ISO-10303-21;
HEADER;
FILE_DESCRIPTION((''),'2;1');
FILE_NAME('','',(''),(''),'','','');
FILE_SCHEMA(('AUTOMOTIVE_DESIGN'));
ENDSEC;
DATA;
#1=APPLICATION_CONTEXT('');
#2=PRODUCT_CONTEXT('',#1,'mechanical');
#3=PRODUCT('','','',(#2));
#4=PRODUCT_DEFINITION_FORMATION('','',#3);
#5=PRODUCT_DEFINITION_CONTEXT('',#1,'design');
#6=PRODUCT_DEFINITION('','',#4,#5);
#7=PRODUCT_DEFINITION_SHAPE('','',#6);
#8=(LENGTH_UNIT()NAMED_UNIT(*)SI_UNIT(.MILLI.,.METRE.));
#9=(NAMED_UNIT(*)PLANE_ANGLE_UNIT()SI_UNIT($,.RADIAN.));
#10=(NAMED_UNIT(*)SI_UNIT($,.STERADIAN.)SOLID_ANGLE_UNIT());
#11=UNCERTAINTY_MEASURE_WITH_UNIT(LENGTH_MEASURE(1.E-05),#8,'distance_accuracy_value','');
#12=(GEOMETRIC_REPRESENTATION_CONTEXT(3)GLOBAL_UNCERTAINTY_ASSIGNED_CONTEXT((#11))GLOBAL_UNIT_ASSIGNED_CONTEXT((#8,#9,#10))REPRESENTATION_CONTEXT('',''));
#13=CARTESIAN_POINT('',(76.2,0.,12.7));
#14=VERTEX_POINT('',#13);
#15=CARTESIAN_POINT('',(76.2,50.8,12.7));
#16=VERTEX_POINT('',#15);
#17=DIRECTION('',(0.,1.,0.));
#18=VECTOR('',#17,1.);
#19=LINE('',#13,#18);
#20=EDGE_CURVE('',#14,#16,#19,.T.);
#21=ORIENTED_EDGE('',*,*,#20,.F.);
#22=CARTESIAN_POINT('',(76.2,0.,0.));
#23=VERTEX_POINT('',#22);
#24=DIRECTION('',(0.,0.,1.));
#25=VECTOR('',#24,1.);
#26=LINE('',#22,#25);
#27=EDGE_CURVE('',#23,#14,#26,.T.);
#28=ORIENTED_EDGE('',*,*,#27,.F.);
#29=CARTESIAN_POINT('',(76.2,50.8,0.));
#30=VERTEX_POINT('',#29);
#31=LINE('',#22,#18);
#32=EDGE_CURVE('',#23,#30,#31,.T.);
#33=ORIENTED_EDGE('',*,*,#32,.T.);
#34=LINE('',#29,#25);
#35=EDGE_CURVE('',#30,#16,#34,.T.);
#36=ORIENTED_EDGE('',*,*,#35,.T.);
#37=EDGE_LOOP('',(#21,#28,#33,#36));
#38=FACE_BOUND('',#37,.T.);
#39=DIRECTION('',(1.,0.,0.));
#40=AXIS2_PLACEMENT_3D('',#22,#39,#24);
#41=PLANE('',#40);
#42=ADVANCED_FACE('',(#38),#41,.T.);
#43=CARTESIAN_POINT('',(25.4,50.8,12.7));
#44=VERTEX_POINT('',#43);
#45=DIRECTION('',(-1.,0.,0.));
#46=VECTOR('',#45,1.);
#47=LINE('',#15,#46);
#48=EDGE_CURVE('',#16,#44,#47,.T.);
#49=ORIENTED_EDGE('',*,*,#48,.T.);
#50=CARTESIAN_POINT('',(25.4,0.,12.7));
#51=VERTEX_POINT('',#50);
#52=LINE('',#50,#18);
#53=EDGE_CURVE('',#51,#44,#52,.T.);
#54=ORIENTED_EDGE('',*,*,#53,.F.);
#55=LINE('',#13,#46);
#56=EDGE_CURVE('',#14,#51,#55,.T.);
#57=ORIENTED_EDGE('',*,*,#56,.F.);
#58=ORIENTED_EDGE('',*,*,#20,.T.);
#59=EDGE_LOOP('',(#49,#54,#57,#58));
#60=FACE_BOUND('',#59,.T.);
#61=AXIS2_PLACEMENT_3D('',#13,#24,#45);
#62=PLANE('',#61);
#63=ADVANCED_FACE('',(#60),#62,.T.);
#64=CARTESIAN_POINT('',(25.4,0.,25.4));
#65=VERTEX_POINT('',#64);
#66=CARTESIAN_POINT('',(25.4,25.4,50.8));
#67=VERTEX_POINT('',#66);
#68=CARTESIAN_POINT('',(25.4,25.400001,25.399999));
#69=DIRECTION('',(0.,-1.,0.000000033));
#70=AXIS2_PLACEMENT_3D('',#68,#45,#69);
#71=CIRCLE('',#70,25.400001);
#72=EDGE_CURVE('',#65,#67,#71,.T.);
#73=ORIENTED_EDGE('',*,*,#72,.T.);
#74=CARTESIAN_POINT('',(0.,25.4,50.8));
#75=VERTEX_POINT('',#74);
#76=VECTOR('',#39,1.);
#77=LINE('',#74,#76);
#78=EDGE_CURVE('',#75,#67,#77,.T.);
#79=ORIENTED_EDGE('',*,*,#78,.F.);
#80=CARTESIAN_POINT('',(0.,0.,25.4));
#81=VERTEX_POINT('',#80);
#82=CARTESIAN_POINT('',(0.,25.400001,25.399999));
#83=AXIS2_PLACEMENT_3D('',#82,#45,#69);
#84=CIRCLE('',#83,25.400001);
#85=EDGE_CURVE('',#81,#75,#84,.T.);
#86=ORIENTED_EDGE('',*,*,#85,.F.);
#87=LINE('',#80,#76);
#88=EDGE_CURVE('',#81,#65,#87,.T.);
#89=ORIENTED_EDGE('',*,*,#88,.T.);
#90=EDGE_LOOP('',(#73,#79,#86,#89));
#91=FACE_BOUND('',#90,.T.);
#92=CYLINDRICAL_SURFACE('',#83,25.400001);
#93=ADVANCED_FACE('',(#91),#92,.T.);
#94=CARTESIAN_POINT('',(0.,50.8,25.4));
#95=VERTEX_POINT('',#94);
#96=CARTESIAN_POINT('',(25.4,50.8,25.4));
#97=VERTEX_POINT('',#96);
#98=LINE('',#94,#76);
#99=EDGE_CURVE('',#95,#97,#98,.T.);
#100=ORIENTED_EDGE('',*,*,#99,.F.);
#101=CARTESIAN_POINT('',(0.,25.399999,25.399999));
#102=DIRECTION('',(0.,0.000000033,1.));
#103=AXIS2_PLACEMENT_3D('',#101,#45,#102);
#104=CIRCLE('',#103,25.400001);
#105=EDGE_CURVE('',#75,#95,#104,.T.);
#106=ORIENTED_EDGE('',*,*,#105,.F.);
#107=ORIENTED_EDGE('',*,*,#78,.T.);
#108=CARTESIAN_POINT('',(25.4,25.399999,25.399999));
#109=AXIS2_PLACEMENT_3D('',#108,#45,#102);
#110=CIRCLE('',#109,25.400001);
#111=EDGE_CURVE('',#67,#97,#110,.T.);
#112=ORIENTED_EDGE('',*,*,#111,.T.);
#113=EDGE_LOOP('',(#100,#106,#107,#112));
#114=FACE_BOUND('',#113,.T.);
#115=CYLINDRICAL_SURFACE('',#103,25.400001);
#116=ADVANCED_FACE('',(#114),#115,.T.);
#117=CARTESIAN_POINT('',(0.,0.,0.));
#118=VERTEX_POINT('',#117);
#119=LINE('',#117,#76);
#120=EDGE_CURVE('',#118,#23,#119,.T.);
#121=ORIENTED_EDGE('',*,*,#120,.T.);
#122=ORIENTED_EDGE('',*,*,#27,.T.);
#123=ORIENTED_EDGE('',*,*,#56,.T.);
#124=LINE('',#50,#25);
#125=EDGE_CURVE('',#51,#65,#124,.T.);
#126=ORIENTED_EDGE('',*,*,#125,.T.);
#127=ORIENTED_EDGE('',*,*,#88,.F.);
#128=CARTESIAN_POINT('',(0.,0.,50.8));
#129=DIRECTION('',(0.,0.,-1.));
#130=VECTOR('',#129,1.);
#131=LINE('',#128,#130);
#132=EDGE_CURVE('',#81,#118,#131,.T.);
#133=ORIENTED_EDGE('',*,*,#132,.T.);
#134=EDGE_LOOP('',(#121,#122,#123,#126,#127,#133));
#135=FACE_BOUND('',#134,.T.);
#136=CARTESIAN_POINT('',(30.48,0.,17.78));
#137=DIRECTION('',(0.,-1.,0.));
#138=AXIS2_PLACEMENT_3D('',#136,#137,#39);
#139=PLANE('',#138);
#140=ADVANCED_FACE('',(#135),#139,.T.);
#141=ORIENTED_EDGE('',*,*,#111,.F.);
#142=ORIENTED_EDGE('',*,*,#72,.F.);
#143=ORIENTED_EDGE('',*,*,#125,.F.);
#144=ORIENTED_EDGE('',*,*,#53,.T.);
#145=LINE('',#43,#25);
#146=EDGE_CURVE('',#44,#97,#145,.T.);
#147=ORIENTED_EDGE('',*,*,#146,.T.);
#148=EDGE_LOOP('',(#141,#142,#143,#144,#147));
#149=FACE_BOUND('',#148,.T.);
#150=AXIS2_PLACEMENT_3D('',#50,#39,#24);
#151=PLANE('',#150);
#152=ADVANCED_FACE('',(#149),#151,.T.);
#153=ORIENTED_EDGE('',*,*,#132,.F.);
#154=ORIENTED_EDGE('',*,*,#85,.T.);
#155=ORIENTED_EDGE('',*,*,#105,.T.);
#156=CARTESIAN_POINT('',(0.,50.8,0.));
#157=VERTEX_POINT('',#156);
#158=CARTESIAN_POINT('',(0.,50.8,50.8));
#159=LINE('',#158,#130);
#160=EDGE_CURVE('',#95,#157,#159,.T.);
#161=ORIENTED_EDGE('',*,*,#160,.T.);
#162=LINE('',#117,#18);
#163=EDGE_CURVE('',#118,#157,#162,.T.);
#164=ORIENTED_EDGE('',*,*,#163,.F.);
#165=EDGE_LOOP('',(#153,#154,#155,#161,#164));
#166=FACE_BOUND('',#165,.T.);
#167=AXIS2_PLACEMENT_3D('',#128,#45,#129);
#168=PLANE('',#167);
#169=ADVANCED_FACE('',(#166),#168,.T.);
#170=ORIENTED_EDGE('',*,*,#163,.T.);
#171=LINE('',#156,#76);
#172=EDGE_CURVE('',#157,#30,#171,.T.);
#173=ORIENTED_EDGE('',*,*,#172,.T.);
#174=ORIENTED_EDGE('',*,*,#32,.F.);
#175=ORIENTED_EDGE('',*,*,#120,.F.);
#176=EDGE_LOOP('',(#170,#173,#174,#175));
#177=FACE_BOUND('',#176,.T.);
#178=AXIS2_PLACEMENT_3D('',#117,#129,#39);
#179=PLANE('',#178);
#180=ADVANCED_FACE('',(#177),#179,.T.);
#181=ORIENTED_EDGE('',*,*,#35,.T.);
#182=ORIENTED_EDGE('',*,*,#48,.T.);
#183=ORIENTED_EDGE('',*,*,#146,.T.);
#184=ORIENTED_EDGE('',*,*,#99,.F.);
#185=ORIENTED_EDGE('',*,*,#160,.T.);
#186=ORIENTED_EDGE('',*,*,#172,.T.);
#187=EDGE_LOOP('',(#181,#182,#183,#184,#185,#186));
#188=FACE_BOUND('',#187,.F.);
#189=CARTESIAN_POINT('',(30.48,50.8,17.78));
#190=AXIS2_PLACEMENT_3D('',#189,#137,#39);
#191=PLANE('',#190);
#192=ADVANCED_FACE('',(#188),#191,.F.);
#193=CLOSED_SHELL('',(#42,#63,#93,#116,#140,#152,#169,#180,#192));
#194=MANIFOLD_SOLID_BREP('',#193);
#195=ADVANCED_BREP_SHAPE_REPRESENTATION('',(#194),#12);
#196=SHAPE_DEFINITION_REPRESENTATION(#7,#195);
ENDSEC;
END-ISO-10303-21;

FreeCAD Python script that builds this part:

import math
import FreeCAD as App
import Part
import Sketcher

V = App.Vector
Q = App.Units.Quantity

doc = App.newDocument("Part")
body = doc.addObject("PartDesign::Body", "Body")

# Sketch on XZ plane
sketch1 = body.newObject("Sketcher::SketchObject", "Sketch")
sketch1.AttachmentSupport = (doc.getObject("XZ_Plane"), [""])
sketch1.MapMode = "FlatFace"
sketch1.addGeometry([
    Part.LineSegment(V(0, 51, 0), V(0, 0, 0)),  # 0
    Part.LineSegment(V(0, 0, 0), V(76, 0, 0)),  # 1
    Part.LineSegment(V(76, 0, 0), V(76, 13, 0)),  # 2
    Part.LineSegment(V(76, 13, 0), V(25, 13, 0)),  # 3
    Part.LineSegment(V(25, 13, 0), V(25, 51, 0)),  # 4
    Part.LineSegment(V(25, 51, 0), V(0, 51, 0)),  # 5
], False)
sketch1.addConstraint([
    Sketcher.Constraint("Coincident", 0, 2, 1, 1),
    Sketcher.Constraint("Coincident", 1, 2, 2, 1),
    Sketcher.Constraint("Coincident", 2, 2, 3, 1),
    Sketcher.Constraint("Coincident", 3, 2, 4, 1),
    Sketcher.Constraint("Coincident", 4, 2, 5, 1),
    Sketcher.Constraint("Coincident", 5, 2, 0, 1),
    Sketcher.Constraint("Vertical", 0),
    Sketcher.Constraint("Horizontal", 1),
    Sketcher.Constraint("Vertical", 2),
    Sketcher.Constraint("Horizontal", 3),
    Sketcher.Constraint("Vertical", 4),
    Sketcher.Constraint("Horizontal", 5),
    Sketcher.Constraint("Coincident", 0, 2, -1, 1),
    Sketcher.Constraint("Equal", 3, 0),
    Sketcher.Constraint("DistanceX", 1, 1, 1, 2, Q("3 in")),
    Sketcher.Constraint("DistanceX", 3, 2, 3, 1, Q("2 in")),
    Sketcher.Constraint("DistanceY", 2, 1, 2, 2, Q("0.5 in")),
])
pad1 = body.newObject("PartDesign::Pad", "Pad")
pad1.Profile = sketch1
pad1.Length = Q("2 in")
pad1.Reversed = True

# Sketch on YZ plane
sketch2 = body.newObject("Sketcher::SketchObject", "Sketch001")
sketch2.AttachmentSupport = (doc.getObject("YZ_Plane"), [""])
sketch2.MapMode = "FlatFace"
sketch2.addGeometry([
    Part.LineSegment(V(51, 51, 0), V(25, 51, 0)),  # 0
    Part.ArcOfCircle(Part.Circle(V(25, 25, 0), V(0, 0, 1), 25), math.radians(0), math.radians(90)),  # 1
    Part.LineSegment(V(51, 25, 0), V(51, 51, 0)),  # 2
    Part.ArcOfCircle(Part.Circle(V(25, 25, 0), V(0, 0, 1), 25), math.radians(90), math.radians(180)),  # 3
    Part.LineSegment(V(25, 51, 0), V(0, 51, 0)),  # 4
    Part.LineSegment(V(0, 51, 0), V(0, 25, 0)),  # 5
], False)
sketch2.addConstraint([
    Sketcher.Constraint("Tangent", 0, 2, 1, 2),
    Sketcher.Constraint("Tangent", 1, 1, 2, 1),
    Sketcher.Constraint("Coincident", 2, 2, 0, 1),
    Sketcher.Constraint("Tangent", 3, 1, 4, 1),
    Sketcher.Constraint("Coincident", 4, 2, 5, 1),
    Sketcher.Constraint("Tangent", 5, 2, 3, 2),
    Sketcher.Constraint("Horizontal", 0),
    Sketcher.Constraint("Vertical", 2),
    Sketcher.Constraint("Horizontal", 4),
    Sketcher.Constraint("Vertical", 5),
    Sketcher.Constraint("Coincident", 3, 3, 1, 3),
    Sketcher.Constraint("Equal", 1, 3),
    Sketcher.Constraint("PointOnObject", 4, 2, -2),
    Sketcher.Constraint("Radius", 1, Q("1 in")),
    Sketcher.Constraint("DistanceY", -1, 1, 1, 3, Q("1 in")),
])
pocket1 = body.newObject("PartDesign::Pocket", "Pocket")
pocket1.Profile = sketch2
pocket1.Length = Q("1 in")
pocket1.Reversed = True

doc.recompute()
